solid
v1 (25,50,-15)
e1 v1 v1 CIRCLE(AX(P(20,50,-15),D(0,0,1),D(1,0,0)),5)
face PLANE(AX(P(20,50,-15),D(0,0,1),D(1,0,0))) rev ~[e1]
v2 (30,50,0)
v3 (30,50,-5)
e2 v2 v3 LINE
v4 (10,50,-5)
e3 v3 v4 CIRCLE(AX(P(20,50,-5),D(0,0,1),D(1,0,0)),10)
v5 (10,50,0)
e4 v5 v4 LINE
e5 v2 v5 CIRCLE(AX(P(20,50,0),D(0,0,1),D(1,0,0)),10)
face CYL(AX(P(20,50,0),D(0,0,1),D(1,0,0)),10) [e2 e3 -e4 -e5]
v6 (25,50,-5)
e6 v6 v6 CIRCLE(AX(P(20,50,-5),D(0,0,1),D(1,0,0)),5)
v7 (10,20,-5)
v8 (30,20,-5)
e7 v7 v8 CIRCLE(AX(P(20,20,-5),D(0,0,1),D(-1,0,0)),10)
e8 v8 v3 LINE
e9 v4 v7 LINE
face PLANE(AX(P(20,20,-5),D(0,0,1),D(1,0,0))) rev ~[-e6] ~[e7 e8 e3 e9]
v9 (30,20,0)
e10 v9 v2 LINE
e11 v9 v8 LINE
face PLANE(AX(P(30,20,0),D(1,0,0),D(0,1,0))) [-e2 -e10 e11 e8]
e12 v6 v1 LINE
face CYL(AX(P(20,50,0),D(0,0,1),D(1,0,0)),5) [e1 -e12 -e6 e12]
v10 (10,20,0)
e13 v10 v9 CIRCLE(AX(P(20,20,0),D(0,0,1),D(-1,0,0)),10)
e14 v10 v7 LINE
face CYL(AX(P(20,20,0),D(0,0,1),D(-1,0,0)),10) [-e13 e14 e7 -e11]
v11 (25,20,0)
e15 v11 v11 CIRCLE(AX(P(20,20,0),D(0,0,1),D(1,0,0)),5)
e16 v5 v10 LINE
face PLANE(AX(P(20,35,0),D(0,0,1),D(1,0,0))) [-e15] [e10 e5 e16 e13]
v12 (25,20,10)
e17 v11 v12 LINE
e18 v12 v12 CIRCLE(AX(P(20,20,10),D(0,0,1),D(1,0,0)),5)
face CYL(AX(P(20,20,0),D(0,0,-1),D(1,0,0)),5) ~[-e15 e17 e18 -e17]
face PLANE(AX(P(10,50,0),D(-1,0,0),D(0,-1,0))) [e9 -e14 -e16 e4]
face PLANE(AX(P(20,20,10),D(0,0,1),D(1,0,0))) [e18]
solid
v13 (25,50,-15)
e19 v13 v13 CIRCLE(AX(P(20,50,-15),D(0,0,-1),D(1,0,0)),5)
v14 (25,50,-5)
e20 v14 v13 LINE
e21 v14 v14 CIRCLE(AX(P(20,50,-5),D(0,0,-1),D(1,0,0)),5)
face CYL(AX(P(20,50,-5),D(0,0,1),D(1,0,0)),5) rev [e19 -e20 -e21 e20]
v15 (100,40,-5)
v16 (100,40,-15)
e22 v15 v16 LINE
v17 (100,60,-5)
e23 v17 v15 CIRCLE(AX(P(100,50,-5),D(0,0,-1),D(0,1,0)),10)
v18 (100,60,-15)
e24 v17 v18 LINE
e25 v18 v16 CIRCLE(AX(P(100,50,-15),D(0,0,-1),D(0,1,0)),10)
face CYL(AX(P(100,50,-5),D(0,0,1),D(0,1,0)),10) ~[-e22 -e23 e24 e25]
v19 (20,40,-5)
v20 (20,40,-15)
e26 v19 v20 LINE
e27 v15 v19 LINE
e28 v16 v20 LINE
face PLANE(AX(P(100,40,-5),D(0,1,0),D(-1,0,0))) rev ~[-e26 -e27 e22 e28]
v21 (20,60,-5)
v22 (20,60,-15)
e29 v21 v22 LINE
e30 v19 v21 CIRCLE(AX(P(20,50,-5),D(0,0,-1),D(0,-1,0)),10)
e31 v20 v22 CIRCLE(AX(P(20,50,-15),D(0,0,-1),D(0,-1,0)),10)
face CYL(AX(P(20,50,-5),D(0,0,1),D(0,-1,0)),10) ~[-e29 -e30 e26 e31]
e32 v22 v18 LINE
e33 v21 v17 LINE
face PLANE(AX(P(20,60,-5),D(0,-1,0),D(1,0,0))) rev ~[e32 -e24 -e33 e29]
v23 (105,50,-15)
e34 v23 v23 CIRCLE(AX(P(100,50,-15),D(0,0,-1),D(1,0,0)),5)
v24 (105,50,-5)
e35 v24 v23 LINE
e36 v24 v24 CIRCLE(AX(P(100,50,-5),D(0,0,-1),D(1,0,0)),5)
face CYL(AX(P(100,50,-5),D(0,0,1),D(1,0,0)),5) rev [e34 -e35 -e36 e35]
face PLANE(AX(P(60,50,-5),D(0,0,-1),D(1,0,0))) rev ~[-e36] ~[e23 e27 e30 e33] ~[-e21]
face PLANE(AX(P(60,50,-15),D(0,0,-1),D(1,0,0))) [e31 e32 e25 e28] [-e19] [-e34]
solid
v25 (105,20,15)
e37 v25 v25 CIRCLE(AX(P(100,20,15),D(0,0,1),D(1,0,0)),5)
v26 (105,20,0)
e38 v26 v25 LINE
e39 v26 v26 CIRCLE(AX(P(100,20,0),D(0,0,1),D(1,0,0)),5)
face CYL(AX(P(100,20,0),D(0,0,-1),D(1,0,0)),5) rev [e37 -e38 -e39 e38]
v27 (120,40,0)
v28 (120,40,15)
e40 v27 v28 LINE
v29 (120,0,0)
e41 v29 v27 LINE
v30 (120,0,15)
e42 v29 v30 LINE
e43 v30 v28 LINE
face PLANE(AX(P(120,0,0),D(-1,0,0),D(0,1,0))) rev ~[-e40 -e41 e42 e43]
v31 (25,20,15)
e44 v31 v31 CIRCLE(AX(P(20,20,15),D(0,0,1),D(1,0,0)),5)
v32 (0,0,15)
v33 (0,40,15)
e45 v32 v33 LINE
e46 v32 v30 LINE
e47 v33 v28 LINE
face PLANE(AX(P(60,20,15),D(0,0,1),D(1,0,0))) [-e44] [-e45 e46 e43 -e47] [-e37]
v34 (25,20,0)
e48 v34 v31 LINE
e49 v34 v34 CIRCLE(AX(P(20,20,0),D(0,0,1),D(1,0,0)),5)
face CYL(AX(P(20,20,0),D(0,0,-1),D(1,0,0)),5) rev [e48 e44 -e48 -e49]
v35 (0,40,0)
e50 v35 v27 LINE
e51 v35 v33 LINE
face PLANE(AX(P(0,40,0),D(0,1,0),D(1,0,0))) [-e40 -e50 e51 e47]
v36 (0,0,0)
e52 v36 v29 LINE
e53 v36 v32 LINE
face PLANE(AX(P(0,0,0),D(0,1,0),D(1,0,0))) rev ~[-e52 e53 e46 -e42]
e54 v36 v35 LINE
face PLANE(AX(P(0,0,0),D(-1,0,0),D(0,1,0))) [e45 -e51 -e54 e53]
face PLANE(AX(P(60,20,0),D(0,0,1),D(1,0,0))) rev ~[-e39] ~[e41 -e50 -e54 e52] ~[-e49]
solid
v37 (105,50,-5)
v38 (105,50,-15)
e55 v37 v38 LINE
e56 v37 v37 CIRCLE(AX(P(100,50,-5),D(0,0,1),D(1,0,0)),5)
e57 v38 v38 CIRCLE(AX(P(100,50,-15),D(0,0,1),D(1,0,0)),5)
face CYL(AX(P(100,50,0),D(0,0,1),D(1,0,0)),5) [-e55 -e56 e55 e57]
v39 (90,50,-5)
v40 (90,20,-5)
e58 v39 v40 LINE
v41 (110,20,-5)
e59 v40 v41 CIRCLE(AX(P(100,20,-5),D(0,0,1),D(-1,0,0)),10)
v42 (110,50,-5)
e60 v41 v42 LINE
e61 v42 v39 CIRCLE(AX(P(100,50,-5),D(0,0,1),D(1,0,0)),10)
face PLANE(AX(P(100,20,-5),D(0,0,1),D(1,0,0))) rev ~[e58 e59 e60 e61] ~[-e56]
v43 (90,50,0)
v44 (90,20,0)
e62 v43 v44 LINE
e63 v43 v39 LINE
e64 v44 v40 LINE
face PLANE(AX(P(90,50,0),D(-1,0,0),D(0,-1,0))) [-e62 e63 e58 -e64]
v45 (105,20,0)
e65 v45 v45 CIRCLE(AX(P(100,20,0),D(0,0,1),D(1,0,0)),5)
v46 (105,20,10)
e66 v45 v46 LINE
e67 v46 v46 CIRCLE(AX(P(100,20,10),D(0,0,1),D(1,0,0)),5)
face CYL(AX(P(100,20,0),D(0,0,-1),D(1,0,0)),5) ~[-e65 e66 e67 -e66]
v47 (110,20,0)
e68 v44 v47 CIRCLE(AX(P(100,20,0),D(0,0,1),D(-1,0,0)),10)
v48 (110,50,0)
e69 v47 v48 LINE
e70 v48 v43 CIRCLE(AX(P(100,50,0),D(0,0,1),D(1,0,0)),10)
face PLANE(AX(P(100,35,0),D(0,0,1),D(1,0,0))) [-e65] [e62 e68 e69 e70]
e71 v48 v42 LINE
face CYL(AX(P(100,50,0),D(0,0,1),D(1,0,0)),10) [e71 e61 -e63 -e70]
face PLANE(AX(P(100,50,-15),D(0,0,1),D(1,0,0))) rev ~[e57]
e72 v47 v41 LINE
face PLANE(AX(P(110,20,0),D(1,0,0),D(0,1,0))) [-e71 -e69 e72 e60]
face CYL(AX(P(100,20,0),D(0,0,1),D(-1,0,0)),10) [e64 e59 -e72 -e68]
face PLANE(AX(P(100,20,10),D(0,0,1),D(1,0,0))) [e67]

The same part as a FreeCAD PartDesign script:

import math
import FreeCAD as App
import Part
import Sketcher
from FreeCAD import Vector
Q = App.Units.Quantity

doc = App.newDocument("Part")
params = doc.addObject("Spreadsheet::Sheet", "Params")
for row, (alias, value) in enumerate([
    ("sketch1_diameter", "10 mm"),
    ("sketch1_width", "120 mm"),
    ("sketch1_height", "40 mm"),
    ("pad1_length", "15 mm"),
    ("sketch2_diameter", "10 mm"),
    ("sketch2_radius", "10 mm"),
    ("sketch2_height", "30 mm"),
    ("pad2_length", "5 mm"),
    ("sketch3_diameter", "10 mm"),
    ("pad3_length", "10 mm"),
    ("pad3_length2", "5 mm"),
    ("sketch4_diameter", "10 mm"),
    ("pad4_length", "15 mm"),
    ("sketch5_diameter", "10 mm"),
    ("sketch5_radius", "10 mm"),
    ("sketch5_height", "30 mm"),
    ("pad5_length", "5 mm"),
    ("sketch6_diameter", "10 mm"),
    ("pad6_length", "10 mm"),
    ("pad6_length2", "5 mm"),
    ("sketch7_diameter", "10 mm"),
    ("pad7_length", "15 mm"),
    ("sketch8_diameter", "10 mm"),
    ("sketch8_radius", "10 mm"),
    ("sketch8_width", "80 mm"),
    ("pad8_length", "10 mm"),
], start=1):
    params.set(f"A{row}", alias)
    params.set(f"B{row}", "=" + value)
    params.setAlias(f"B{row}", alias)

body = doc.addObject("PartDesign::Body", "Body")

# Sketch on XY plane
sketch1 = body.newObject("Sketcher::SketchObject", "Sketch")
sketch1.AttachmentSupport = (doc.getObject("XY_Plane"), [""])
sketch1.MapMode = "FlatFace"
sketch1.addGeometry([
    Part.LineSegment(Vector(0, 40, 0), Vector(0, 0, 0)),  # 0
    Part.LineSegment(Vector(0, 0, 0), Vector(120, 0, 0)),  # 1
    Part.LineSegment(Vector(120, 0, 0), Vector(120, 40, 0)),  # 2
    Part.LineSegment(Vector(120, 40, 0), Vector(0, 40, 0)),  # 3
    Part.Circle(Vector(20, 20, 0), Vector(0, 0, 1), 5),  # 4
    Part.Circle(Vector(100, 20, 0), Vector(0, 0, 1), 5),  # 5
], False)
sketch1.addConstraint([
    Sketcher.Constraint("Coincident", 0, 2, 1, 1),
    Sketcher.Constraint("Coincident", 1, 2, 2, 1),
    Sketcher.Constraint("Coincident", 2, 2, 3, 1),
    Sketcher.Constraint("Coincident", 3, 2, 0, 1),
    Sketcher.Constraint("Vertical", 0),
    Sketcher.Constraint("Horizontal", 1),
    Sketcher.Constraint("Vertical", 2),
    Sketcher.Constraint("Horizontal", 3),
    Sketcher.Constraint("Coincident", 0, 2, -1, 1),
    Sketcher.Constraint("Equal", 4, 5),
    Sketcher.Constraint("Horizontal", 4, 3, 5, 3),
    Sketcher.Constraint("Diameter", 4, Q("10 mm")),
    Sketcher.Constraint("DistanceX", 1, 1, 1, 2, Q("120 mm")),
    Sketcher.Constraint("DistanceY", 0, 2, 0, 1, Q("40 mm")),
    Sketcher.Constraint("DistanceX", -1, 1, 4, 3, Q("20 mm")),
    Sketcher.Constraint("DistanceY", -1, 1, 4, 3, Q("20 mm")),
    Sketcher.Constraint("DistanceX", -1, 1, 5, 3, Q("100 mm")),
])
sketch1.setExpression("Constraints[11]", "Params.sketch1_diameter")
sketch1.setExpression("Constraints[12]", "Params.sketch1_width")
sketch1.setExpression("Constraints[13]", "Params.sketch1_height")
pad1 = body.newObject("PartDesign::Pad", "Pad")
pad1.Profile = sketch1
pad1.setExpression("Length", "Params.pad1_length")
body2 = doc.addObject("PartDesign::Body", "Body001")

# Sketch on XY plane
sketch2 = body2.newObject("Sketcher::SketchObject", "Sketch001")
sketch2.AttachmentSupport = (doc.getObject("XY_Plane001"), [""])
sketch2.MapMode = "FlatFace"
sketch2.addGeometry([
    Part.LineSegment(Vector(10, 50, 0), Vector(10, 20, 0)),  # 0
    Part.ArcOfCircle(Part.Circle(Vector(20, 20, 0), Vector(0, 0, 1), 10), math.radians(180), math.radians(360)),  # 1
    Part.LineSegment(Vector(30, 20, 0), Vector(30, 50, 0)),  # 2
    Part.ArcOfCircle(Part.Circle(Vector(20, 50, 0), Vector(0, 0, 1), 10), math.radians(0), math.radians(180)),  # 3
    Part.Circle(Vector(20, 20, 0), Vector(0, 0, 1), 5),  # 4
    Part.Circle(Vector(20, 50, 0), Vector(0, 0, 1), 5),  # 5
], False)
sketch2.addConstraint([
    Sketcher.Constraint("Tangent", 0, 2, 1, 1),
    Sketcher.Constraint("Tangent", 1, 2, 2, 1),
    Sketcher.Constraint("Tangent", 2, 2, 3, 1),
    Sketcher.Constraint("Tangent", 3, 2, 0, 1),
    Sketcher.Constraint("Vertical", 0),
    Sketcher.Constraint("Vertical", 2),
    Sketcher.Constraint("Coincident", 4, 3, 1, 3),
    Sketcher.Constraint("Coincident", 5, 3, 3, 3),
    Sketcher.Constraint("Equal", 4, 5),
    Sketcher.Constraint("Diameter", 4, Q("10 mm")),
    Sketcher.Constraint("Radius", 1, Q("10 mm")),
    Sketcher.Constraint("DistanceY", 0, 2, 0, 1, Q("30 mm")),
    Sketcher.Constraint("DistanceX", -1, 1, 1, 3, Q("20 mm")),
    Sketcher.Constraint("DistanceY", -1, 1, 1, 3, Q("20 mm")),
])
sketch2.setExpression("Constraints[9]", "Params.sketch2_diameter")
sketch2.setExpression("Constraints[10]", "Params.sketch2_radius")
sketch2.setExpression("Constraints[11]", "Params.sketch2_height")
pad2 = body2.newObject("PartDesign::Pad", "Pad001")
pad2.Profile = sketch2
pad2.setExpression("Length", "Params.pad2_length")
pad2.Reversed = True

# Sketch on XY plane
sketch3 = body2.newObject("Sketcher::SketchObject", "Sketch002")
sketch3.AttachmentSupport = (doc.getObject("XY_Plane001"), [""])
sketch3.MapMode = "FlatFace"
sketch3.addGeometry(Part.Circle(Vector(20, 20, 0), Vector(0, 0, 1), 5), False)
sketch3.addConstraint([
    Sketcher.Constraint("Diameter", 0, Q("10 mm")),
    Sketcher.Constraint("DistanceX", -1, 1, 0, 3, Q("20 mm")),
    Sketcher.Constraint("DistanceY", -1, 1, 0, 3, Q("20 mm")),
])
sketch3.setExpression("Constraints[0]", "Params.sketch3_diameter")
pad3 = body2.newObject("PartDesign::Pad", "Pad002")
pad3.Profile = sketch3
pad3.Type = "TwoLengths"
pad3.setExpression("Length", "Params.pad3_length")
pad3.setExpression("Length2", "Params.pad3_length2")

# Sketch on XY plane
sketch4 = body2.newObject("Sketcher::SketchObject", "Sketch003")
sketch4.AttachmentSupport = (doc.getObject("XY_Plane001"), [""])
sketch4.MapMode = "FlatFace"
sketch4.addGeometry(Part.Circle(Vector(20, 50, 0), Vector(0, 0, 1), 5), False)
sketch4.addConstraint([
    Sketcher.Constraint("Diameter", 0, Q("10 mm")),
    Sketcher.Constraint("DistanceX", -1, 1, 0, 3, Q("20 mm")),
    Sketcher.Constraint("DistanceY", -1, 1, 0, 3, Q("50 mm")),
])
sketch4.setExpression("Constraints[0]", "Params.sketch4_diameter")
pad4 = body2.newObject("PartDesign::Pad", "Pad003")
pad4.Profile = sketch4
pad4.setExpression("Length", "Params.pad4_length")
pad4.Reversed = True
body3 = doc.addObject("PartDesign::Body", "Body002")

# Sketch on XY plane
sketch5 = body3.newObject("Sketcher::SketchObject", "Sketch004")
sketch5.AttachmentSupport = (doc.getObject("XY_Plane002"), [""])
sketch5.MapMode = "FlatFace"
sketch5.addGeometry([
    Part.LineSegment(Vector(90, 50, 0), Vector(90, 20, 0)),  # 0
    Part.ArcOfCircle(Part.Circle(Vector(100, 20, 0), Vector(0, 0, 1), 10), math.radians(180), math.radians(360)),  # 1
    Part.LineSegment(Vector(110, 20, 0), Vector(110, 50, 0)),  # 2
    Part.ArcOfCircle(Part.Circle(Vector(100, 50, 0), Vector(0, 0, 1), 10), math.radians(0), math.radians(180)),  # 3
    Part.Circle(Vector(100, 20, 0), Vector(0, 0, 1), 5),  # 4
    Part.Circle(Vector(100, 50, 0), Vector(0, 0, 1), 5),  # 5
], False)
sketch5.addConstraint([
    Sketcher.Constraint("Tangent", 0, 2, 1, 1),
    Sketcher.Constraint("Tangent", 1, 2, 2, 1),
    Sketcher.Constraint("Tangent", 2, 2, 3, 1),
    Sketcher.Constraint("Tangent", 3, 2, 0, 1),
    Sketcher.Constraint("Vertical", 0),
    Sketcher.Constraint("Vertical", 2),
    Sketcher.Constraint("Coincident", 4, 3, 1, 3),
    Sketcher.Constraint("Coincident", 5, 3, 3, 3),
    Sketcher.Constraint("Equal", 4, 5),
    Sketcher.Constraint("Diameter", 4, Q("10 mm")),
    Sketcher.Constraint("Radius", 1, Q("10 mm")),
    Sketcher.Constraint("DistanceY", 0, 2, 0, 1, Q("30 mm")),
    Sketcher.Constraint("DistanceX", -1, 1, 1, 3, Q("100 mm")),
    Sketcher.Constraint("DistanceY", -1, 1, 1, 3, Q("20 mm")),
])
sketch5.setExpression("Constraints[9]", "Params.sketch5_diameter")
sketch5.setExpression("Constraints[10]", "Params.sketch5_radius")
sketch5.setExpression("Constraints[11]", "Params.sketch5_height")
pad5 = body3.newObject("PartDesign::Pad", "Pad004")
pad5.Profile = sketch5
pad5.setExpression("Length", "Params.pad5_length")
pad5.Reversed = True

# Sketch on XY plane
sketch6 = body3.newObject("Sketcher::SketchObject", "Sketch005")
sketch6.AttachmentSupport = (doc.getObject("XY_Plane002"), [""])
sketch6.MapMode = "FlatFace"
sketch6.addGeometry(Part.Circle(Vector(100, 20, 0), Vector(0, 0, 1), 5), False)
sketch6.addConstraint([
    Sketcher.Constraint("Diameter", 0, Q("10 mm")),
    Sketcher.Constraint("DistanceX", -1, 1, 0, 3, Q("100 mm")),
    Sketcher.Constraint("DistanceY", -1, 1, 0, 3, Q("20 mm")),
])
sketch6.setExpression("Constraints[0]", "Params.sketch6_diameter")
pad6 = body3.newObject("PartDesign::Pad", "Pad005")
pad6.Profile = sketch6
pad6.Type = "TwoLengths"
pad6.setExpression("Length", "Params.pad6_length")
pad6.setExpression("Length2", "Params.pad6_length2")

# Sketch on XY plane
sketch7 = body3.newObject("Sketcher::SketchObject", "Sketch006")
sketch7.AttachmentSupport = (doc.getObject("XY_Plane002"), [""])
sketch7.MapMode = "FlatFace"
sketch7.addGeometry(Part.Circle(Vector(100, 50, 0), Vector(0, 0, 1), 5), False)
sketch7.addConstraint([
    Sketcher.Constraint("Diameter", 0, Q("10 mm")),
    Sketcher.Constraint("DistanceX", -1, 1, 0, 3, Q("100 mm")),
    Sketcher.Constraint("DistanceY", -1, 1, 0, 3, Q("50 mm")),
])
sketch7.setExpression("Constraints[0]", "Params.sketch7_diameter")
pad7 = body3.newObject("PartDesign::Pad", "Pad006")
pad7.Profile = sketch7
pad7.setExpression("Length", "Params.pad7_length")
pad7.Reversed = True
body4 = doc.addObject("PartDesign::Body", "Body003")

# Sketch on XY plane
sketch8 = body4.newObject("Sketcher::SketchObject", "Sketch007")
sketch8.AttachmentSupport = (doc.getObject("XY_Plane003"), [""])
sketch8.MapMode = "FlatFace"
sketch8.AttachmentOffset = App.Placement(Vector(0, 0, -5), App.Rotation())
sketch8.addGeometry([
    Part.ArcOfCircle(Part.Circle(Vector(100, 50, 0), Vector(0, 0, 1), 10), math.radians(-90), math.radians(90)),  # 0
    Part.LineSegment(Vector(100, 40, 0), Vector(20, 40, 0)),  # 1
    Part.ArcOfCircle(Part.Circle(Vector(20, 50, 0), Vector(0, 0, 1), 10), math.radians(90), math.radians(270)),  # 2
    Part.LineSegment(Vector(20, 60, 0), Vector(100, 60, 0)),  # 3
    Part.Circle(Vector(20, 50, 0), Vector(0, 0, 1), 5),  # 4
    Part.Circle(Vector(100, 50, 0), Vector(0, 0, 1), 5),  # 5
], False)
sketch8.addConstraint([
    Sketcher.Constraint("Tangent", 0, 1, 1, 1),
    Sketcher.Constraint("Tangent", 1, 2, 2, 2),
    Sketcher.Constraint("Tangent", 2, 1, 3, 1),
    Sketcher.Constraint("Tangent", 3, 2, 0, 2),
    Sketcher.Constraint("Horizontal", 1),
    Sketcher.Constraint("Horizontal", 3),
    Sketcher.Constraint("Coincident", 4, 3, 2, 3),
    Sketcher.Constraint("Coincident", 5, 3, 0, 3),
    Sketcher.Constraint("Equal", 4, 5),
    Sketcher.Constraint("Diameter", 4, Q("10 mm")),
    Sketcher.Constraint("Radius", 0, Q("10 mm")),
    Sketcher.Constraint("DistanceX", 1, 2, 1, 1, Q("80 mm")),
    Sketcher.Constraint("DistanceX", -1, 1, 0, 3, Q("100 mm")),
    Sketcher.Constraint("DistanceY", -1, 1, 0, 3, Q("50 mm")),
])
sketch8.setExpression("Constraints[9]", "Params.sketch8_diameter")
sketch8.setExpression("Constraints[10]", "Params.sketch8_radius")
sketch8.setExpression("Constraints[11]", "Params.sketch8_width")
pad8 = body4.newObject("PartDesign::Pad", "Pad007")
pad8.Profile = sketch8
pad8.setExpression("Length", "Params.pad8_length")
pad8.Reversed = True

doc.recompute()
